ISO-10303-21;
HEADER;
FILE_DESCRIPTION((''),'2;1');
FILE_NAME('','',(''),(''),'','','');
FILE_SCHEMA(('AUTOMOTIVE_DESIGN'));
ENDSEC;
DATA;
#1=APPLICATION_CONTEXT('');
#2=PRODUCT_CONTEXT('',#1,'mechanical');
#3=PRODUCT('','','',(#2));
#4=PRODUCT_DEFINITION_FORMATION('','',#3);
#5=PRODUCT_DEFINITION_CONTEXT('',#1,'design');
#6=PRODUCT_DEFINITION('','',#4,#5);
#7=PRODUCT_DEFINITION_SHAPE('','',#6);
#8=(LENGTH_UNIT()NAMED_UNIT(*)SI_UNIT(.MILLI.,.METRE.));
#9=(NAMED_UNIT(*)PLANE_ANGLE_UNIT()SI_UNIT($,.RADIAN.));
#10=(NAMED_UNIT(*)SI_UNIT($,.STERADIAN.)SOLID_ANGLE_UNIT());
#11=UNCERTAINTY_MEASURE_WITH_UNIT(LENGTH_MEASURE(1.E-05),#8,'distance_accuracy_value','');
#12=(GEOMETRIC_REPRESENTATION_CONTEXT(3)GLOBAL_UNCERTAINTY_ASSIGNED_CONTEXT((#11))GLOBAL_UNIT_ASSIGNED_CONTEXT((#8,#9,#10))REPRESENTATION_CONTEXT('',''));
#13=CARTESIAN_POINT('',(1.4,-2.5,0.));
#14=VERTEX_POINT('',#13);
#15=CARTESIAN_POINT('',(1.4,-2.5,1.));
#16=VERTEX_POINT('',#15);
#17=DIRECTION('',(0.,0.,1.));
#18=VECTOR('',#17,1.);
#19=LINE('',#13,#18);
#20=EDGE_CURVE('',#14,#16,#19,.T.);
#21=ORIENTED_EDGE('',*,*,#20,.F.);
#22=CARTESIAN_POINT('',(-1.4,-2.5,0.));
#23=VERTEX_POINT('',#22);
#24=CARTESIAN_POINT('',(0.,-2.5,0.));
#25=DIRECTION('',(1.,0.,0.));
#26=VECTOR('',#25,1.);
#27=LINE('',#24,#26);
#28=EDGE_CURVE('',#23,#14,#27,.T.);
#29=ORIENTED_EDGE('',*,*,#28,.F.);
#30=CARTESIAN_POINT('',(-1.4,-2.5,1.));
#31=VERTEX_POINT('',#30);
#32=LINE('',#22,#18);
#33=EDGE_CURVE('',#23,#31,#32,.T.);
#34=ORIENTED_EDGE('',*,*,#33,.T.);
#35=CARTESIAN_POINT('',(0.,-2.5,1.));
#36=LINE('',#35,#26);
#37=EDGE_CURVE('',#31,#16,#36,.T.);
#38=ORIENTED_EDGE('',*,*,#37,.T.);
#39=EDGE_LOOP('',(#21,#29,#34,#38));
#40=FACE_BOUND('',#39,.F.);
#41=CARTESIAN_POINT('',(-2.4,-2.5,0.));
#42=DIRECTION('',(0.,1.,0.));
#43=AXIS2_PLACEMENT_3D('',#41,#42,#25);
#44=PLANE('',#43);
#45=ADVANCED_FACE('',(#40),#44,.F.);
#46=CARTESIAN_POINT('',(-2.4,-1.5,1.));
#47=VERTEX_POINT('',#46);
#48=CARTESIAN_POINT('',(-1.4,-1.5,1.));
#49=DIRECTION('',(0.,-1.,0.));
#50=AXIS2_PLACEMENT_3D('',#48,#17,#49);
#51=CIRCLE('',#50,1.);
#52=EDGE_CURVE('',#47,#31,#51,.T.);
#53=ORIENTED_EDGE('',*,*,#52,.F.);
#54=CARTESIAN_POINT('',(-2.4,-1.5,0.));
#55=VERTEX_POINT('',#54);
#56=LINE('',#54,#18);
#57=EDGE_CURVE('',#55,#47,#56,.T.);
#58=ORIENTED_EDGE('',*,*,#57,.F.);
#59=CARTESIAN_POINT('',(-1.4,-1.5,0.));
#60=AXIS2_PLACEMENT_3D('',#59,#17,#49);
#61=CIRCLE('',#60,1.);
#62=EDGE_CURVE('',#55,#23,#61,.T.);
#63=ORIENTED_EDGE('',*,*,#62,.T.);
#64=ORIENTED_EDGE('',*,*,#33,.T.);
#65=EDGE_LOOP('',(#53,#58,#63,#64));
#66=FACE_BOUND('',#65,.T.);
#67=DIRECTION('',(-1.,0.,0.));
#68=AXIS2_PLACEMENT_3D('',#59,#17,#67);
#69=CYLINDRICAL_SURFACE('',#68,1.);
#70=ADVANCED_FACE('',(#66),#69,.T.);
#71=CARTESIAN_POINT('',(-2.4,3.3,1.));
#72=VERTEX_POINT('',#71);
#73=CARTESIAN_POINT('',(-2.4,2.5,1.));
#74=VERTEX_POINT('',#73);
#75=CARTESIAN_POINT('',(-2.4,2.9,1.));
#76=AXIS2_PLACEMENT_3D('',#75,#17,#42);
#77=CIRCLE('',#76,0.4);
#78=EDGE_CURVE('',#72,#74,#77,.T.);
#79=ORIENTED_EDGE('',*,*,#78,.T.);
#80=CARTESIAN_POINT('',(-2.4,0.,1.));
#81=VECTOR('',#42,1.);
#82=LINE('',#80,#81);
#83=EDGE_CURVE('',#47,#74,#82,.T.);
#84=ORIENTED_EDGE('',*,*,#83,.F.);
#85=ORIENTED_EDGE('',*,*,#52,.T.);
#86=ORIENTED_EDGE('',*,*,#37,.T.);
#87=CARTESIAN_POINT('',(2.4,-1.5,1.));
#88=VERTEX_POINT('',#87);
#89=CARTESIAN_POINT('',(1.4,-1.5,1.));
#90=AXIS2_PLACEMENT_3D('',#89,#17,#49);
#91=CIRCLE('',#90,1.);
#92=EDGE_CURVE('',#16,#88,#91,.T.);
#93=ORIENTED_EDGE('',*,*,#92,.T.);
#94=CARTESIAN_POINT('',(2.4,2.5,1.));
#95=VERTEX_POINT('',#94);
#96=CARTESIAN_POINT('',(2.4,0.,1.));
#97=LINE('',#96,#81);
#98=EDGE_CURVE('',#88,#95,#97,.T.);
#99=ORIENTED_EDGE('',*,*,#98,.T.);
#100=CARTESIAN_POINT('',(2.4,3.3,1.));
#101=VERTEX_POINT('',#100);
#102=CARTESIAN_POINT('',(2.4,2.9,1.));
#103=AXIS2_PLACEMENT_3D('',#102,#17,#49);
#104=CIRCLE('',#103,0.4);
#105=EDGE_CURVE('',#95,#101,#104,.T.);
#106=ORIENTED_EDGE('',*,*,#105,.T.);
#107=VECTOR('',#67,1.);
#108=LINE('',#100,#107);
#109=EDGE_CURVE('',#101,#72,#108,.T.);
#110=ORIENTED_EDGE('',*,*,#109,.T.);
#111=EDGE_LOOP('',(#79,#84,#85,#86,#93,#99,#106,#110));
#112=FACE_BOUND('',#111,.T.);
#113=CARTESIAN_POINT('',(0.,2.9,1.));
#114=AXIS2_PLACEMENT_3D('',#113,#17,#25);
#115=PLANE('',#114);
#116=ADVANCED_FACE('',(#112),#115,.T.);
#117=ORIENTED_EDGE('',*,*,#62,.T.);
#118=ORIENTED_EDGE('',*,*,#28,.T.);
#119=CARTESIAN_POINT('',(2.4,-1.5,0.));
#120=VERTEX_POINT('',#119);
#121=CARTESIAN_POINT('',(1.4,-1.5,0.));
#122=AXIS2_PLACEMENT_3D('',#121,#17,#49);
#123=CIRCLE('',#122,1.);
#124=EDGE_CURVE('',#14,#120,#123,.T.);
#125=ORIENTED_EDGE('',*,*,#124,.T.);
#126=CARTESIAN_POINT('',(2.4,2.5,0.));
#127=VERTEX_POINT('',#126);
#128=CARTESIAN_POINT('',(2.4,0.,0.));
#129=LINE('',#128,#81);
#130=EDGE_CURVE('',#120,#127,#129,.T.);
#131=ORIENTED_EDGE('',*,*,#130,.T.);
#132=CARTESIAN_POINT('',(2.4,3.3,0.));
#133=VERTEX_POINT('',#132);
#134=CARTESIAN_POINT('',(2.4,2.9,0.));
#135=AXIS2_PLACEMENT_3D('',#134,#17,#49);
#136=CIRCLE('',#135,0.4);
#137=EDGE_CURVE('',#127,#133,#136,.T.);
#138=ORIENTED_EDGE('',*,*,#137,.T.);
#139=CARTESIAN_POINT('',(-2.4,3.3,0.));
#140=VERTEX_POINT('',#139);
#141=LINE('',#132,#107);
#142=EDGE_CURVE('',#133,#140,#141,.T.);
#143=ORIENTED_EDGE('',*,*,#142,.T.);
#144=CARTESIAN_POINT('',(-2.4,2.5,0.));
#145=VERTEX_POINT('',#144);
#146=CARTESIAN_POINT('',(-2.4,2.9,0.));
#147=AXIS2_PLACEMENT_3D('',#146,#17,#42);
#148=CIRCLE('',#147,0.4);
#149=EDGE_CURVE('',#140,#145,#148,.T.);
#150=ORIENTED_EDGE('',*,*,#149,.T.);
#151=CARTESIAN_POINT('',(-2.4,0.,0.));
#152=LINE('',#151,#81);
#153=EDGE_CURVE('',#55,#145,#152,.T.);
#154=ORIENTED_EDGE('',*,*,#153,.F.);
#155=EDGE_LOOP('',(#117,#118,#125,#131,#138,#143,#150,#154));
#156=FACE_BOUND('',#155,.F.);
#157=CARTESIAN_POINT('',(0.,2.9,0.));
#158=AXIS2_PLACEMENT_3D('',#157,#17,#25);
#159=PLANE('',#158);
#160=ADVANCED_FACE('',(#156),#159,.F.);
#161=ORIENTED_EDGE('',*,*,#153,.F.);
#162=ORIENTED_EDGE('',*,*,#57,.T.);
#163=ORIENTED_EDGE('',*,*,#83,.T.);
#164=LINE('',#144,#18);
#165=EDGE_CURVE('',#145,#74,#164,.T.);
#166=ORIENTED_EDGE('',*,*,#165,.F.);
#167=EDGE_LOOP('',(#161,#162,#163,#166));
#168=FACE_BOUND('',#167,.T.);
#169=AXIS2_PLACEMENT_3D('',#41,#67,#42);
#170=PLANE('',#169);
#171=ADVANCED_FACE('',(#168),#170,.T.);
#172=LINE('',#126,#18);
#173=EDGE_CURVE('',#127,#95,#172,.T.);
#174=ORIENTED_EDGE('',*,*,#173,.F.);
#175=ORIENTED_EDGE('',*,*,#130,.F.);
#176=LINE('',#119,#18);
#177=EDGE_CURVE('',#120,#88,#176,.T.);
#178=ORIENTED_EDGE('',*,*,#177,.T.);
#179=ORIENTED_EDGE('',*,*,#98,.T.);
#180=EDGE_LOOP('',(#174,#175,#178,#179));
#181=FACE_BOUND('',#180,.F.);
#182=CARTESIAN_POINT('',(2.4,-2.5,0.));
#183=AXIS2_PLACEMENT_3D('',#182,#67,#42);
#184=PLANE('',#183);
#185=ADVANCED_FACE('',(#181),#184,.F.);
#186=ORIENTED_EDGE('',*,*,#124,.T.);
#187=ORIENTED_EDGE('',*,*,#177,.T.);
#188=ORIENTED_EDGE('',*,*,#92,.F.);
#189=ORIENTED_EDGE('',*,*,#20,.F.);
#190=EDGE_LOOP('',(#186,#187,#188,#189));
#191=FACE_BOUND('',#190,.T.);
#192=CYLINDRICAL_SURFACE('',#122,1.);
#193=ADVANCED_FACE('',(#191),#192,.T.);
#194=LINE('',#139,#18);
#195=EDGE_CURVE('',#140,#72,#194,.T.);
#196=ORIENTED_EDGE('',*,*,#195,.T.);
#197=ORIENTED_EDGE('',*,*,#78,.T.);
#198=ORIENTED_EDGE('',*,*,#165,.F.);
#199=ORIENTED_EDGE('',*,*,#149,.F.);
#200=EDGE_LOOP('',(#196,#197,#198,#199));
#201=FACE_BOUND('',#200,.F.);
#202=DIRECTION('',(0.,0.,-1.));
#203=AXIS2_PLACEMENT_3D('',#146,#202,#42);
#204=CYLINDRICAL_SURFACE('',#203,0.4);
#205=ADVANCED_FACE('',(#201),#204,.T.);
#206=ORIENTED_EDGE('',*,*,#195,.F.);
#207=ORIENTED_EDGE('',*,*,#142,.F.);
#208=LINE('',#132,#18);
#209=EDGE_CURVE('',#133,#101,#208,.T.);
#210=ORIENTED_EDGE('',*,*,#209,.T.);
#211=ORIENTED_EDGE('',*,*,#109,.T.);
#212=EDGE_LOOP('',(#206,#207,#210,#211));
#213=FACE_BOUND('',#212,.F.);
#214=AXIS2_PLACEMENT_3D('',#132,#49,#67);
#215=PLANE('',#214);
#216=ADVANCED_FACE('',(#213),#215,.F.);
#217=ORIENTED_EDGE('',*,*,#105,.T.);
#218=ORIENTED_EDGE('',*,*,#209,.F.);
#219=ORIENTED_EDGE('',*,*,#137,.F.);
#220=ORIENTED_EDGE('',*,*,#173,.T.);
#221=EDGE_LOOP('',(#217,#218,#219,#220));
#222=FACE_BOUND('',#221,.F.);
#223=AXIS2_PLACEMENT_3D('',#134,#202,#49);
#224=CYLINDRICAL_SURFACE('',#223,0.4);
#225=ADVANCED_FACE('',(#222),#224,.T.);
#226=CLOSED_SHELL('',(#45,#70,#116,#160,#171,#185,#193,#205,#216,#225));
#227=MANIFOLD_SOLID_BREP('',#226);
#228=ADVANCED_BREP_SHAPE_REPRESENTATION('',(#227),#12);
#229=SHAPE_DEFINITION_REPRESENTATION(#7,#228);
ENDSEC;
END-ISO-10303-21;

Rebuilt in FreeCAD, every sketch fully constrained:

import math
import FreeCAD as App
import Part
import Sketcher
from FreeCAD import Vector


def edges_at(feature, points):
    """Names of the edges that pass closest to the given points."""
    edges = feature.Shape.Edges
    near = lambda p: min(range(len(edges)), key=lambda i: edges[i].distToShape(Part.Vertex(*p))[0])
    return sorted({f"Edge{near(p) + 1}" for p in points})

doc = App.newDocument("Part")
body = doc.addObject("PartDesign::Body", "Body")

# Sketch on XY plane
sketch1 = body.newObject("Sketcher::SketchObject", "Sketch")
sketch1.AttachmentSupport = (doc.getObject("XY_Plane"), [""])
sketch1.MapMode = "FlatFace"
sketch1.addGeometry(Part.ArcOfCircle(Part.Circle(Vector(2.4, 2.9, 0), Vector(0, 0, 1), 0.4), math.radians(-90), math.radians(90)), False)
sketch1.addGeometry(Part.LineSegment(Vector(2.4, 3.3, 0), Vector(-2.4, 3.3, 0)), False)
sketch1.addGeometry(Part.ArcOfCircle(Part.Circle(Vector(-2.4, 2.9, 0), Vector(0, 0, 1), 0.4), math.radians(90), math.radians(270)), False)
sketch1.addGeometry(Part.LineSegment(Vector(-2.4, 2.5, 0), Vector(-2.4, -2.5, 0)), False)
sketch1.addGeometry(Part.LineSegment(Vector(-2.4, -2.5, 0), Vector(2.4, -2.5, 0)), False)
sketch1.addGeometry(Part.LineSegment(Vector(2.4, -2.5, 0), Vector(2.4, 2.5, 0)), False)
sketch1.addConstraint(Sketcher.Constraint("Tangent", 0, 2, 1, 1))
sketch1.addConstraint(Sketcher.Constraint("Tangent", 1, 2, 2, 1))
sketch1.addConstraint(Sketcher.Constraint("Coincident", 2, 2, 3, 1))
sketch1.addConstraint(Sketcher.Constraint("Coincident", 3, 2, 4, 1))
sketch1.addConstraint(Sketcher.Constraint("Coincident", 4, 2, 5, 1))
sketch1.addConstraint(Sketcher.Constraint("Coincident", 5, 2, 0, 1))
sketch1.addConstraint(Sketcher.Constraint("Horizontal", 1))
sketch1.addConstraint(Sketcher.Constraint("Vertical", 3))
sketch1.addConstraint(Sketcher.Constraint("Horizontal", 4))
sketch1.addConstraint(Sketcher.Constraint("Vertical", 5))
sketch1.addConstraint(Sketcher.Constraint("Equal", 0, 2))
sketch1.addConstraint(Sketcher.Constraint("Symmetric", 2, 2, 4, 2, -1, 1))
sketch1.addConstraint(Sketcher.Constraint("Vertical", 1, 2, 2, 2))
sketch1.addConstraint(Sketcher.Constraint("Vertical", 0, 2, 4, 2))
sketch1.addConstraint(Sketcher.Constraint("Radius", 0, 0.4))
sketch1.addConstraint(Sketcher.Constraint("DistanceY", 3, 2, 3, 1, 5.0))
sketch1.addConstraint(Sketcher.Constraint("DistanceX", 1, 2, 1, 1, 4.8))
pad1 = body.newObject("PartDesign::Pad", "Pad")
pad1.Profile = sketch1
pad1.Length = 1
doc.recompute()

fillet = body.newObject("PartDesign::Fillet", "Fillet")
fillet.Base = (pad1, edges_at(pad1, [(-2.4, -2.5, 0.5), (2.4, -2.5, 0.5)]))
fillet.Radius = 1

doc.recompute()
